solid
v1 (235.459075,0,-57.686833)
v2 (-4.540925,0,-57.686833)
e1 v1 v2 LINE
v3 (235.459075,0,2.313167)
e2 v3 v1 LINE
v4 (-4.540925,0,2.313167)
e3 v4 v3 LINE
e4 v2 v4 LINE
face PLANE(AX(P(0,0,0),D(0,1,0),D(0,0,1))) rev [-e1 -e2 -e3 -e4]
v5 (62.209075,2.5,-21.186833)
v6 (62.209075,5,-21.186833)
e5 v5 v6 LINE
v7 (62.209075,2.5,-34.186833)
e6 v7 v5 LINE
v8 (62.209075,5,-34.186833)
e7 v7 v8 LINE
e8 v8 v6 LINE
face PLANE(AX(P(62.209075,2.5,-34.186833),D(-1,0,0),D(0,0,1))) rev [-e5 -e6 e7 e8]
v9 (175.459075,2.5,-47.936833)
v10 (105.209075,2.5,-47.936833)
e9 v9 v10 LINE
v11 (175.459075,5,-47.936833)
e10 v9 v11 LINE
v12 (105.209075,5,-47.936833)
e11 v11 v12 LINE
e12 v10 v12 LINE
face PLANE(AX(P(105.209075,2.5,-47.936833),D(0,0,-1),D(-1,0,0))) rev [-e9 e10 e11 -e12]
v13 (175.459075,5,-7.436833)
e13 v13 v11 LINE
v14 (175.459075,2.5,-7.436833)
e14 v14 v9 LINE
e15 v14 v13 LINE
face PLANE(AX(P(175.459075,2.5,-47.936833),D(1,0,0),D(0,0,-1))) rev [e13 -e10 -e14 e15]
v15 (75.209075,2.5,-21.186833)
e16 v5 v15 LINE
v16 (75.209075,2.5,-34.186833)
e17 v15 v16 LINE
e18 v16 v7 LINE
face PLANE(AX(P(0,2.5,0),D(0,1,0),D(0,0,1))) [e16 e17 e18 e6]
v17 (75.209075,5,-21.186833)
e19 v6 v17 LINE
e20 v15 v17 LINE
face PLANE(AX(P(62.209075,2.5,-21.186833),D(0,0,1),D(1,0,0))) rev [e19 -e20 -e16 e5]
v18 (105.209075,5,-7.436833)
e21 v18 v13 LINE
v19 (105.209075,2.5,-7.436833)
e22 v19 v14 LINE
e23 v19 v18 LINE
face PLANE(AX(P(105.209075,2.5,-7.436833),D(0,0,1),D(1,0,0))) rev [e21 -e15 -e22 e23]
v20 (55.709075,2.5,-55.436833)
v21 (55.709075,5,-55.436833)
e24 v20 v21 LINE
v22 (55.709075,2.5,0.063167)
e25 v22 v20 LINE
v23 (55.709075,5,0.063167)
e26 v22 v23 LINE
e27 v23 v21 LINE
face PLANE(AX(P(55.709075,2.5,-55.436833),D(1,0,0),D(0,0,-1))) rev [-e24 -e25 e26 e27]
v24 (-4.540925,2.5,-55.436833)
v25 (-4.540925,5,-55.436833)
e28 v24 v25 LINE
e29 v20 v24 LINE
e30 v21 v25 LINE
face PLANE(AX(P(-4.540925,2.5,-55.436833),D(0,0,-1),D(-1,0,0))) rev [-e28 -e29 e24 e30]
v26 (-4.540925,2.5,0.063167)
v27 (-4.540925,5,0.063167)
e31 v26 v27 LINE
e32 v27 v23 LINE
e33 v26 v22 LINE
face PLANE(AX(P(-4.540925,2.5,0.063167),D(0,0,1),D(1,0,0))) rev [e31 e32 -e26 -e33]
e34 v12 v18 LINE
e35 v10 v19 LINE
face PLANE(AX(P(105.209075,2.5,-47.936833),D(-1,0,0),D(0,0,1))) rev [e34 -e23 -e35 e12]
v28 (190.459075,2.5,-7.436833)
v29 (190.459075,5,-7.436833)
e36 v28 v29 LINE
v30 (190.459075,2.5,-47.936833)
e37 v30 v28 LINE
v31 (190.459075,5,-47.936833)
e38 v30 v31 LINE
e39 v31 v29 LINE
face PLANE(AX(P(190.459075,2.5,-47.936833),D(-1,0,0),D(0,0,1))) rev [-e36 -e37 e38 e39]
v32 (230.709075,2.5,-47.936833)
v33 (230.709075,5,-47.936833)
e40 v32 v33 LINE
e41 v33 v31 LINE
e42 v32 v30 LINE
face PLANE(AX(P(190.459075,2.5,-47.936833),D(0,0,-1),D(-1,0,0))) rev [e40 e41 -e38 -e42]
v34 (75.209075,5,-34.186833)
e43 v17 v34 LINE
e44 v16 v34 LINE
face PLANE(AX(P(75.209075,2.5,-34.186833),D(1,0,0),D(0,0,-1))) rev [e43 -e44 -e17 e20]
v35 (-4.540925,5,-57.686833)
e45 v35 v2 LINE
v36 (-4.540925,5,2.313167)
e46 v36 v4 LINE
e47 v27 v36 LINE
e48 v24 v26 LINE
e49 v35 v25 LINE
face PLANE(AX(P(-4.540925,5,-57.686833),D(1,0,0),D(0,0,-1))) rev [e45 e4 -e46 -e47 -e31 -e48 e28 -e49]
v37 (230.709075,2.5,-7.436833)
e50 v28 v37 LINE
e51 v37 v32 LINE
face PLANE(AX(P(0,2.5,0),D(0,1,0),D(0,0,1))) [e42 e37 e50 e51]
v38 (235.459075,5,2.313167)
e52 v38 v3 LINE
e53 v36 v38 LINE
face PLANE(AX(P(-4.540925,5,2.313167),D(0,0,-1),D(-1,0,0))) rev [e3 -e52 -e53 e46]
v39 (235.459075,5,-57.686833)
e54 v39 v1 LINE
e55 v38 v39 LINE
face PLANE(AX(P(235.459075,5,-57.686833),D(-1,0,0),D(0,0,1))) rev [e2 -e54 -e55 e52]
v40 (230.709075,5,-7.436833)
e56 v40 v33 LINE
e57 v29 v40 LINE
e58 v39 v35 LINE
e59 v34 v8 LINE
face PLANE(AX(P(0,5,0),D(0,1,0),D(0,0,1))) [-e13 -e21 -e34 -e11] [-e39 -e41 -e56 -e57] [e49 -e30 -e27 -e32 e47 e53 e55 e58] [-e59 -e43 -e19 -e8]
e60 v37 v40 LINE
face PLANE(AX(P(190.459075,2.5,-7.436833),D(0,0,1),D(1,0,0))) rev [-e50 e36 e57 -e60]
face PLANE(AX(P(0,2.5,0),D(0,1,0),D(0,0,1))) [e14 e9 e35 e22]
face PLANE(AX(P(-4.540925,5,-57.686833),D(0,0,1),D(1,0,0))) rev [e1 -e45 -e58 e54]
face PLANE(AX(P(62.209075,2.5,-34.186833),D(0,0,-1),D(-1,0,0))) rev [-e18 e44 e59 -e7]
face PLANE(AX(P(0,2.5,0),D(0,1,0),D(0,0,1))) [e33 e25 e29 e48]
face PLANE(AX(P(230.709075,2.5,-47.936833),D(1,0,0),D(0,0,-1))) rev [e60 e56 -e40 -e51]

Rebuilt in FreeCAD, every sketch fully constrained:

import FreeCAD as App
import Part
import Sketcher
from FreeCAD import Vector
Q = App.Units.Quantity


def add_polygon(sketch, points):
    """Adds a closed chain of lines whose ends are joined by coincident constraints."""
    first, n = sketch.GeometryCount, len(points)
    for a, b in zip(points, points[1:] + points[:1]):
        sketch.addGeometry(Part.LineSegment(App.Vector(*a, 0), App.Vector(*b, 0)), False)
    for i in range(n):
        sketch.addConstraint(Sketcher.Constraint("Coincident", first + i, 2, first + (i + 1) % n, 1))

doc = App.newDocument("Part")
body = doc.addObject("PartDesign::Body", "Body")

# Sketch on XZ plane
sketch1 = body.newObject("Sketcher::SketchObject", "Sketch")
sketch1.AttachmentSupport = (doc.getObject("XZ_Plane"), [""])
sketch1.MapMode = "FlatFace"
add_polygon(sketch1, [(-5, -58), (-5, 2), (235, 2), (235, -58)])  # lines 0-3
sketch1.addConstraint([
    Sketcher.Constraint("Vertical", 0),
    Sketcher.Constraint("Horizontal", 1),
    Sketcher.Constraint("Vertical", 2),
    Sketcher.Constraint("Horizontal", 3),
    Sketcher.Constraint("DistanceX", 1, 1, 1, 2, Q("240 mm")),
    Sketcher.Constraint("DistanceY", 0, 1, 0, 2, Q("60 mm")),
    Sketcher.Constraint("DistanceX", 0, 2, -1, 1, Q("4.540925 mm")),
    Sketcher.Constraint("DistanceY", -1, 1, 0, 2, Q("2.313167 mm")),
])
pad1 = body.newObject("PartDesign::Pad", "Pad")
pad1.Profile = sketch1
pad1.Length = 5
pad1.Reversed = True

# Sketch on XZ plane
sketch2 = body.newObject("Sketcher::SketchObject", "Sketch001")
sketch2.AttachmentSupport = (doc.getObject("XZ_Plane"), [""])
sketch2.MapMode = "FlatFace"
sketch2.AttachmentOffset = App.Placement(Vector(0, 0, -5), App.Rotation())
add_polygon(sketch2, [(190, -48), (190, -7), (231, -7), (231, -48)])  # lines 0-3
add_polygon(sketch2, [(105, -48), (105, -7), (175, -7), (175, -48)])  # lines 4-7
add_polygon(sketch2, [(62, -34), (62, -21), (75, -21), (75, -34)])  # lines 8-11
add_polygon(sketch2, [(-5, -55), (-5, 0), (56, 0), (56, -55)])  # lines 12-15
sketch2.addConstraint([
    Sketcher.Constraint("Vertical", 0),
    Sketcher.Constraint("Horizontal", 1),
    Sketcher.Constraint("Vertical", 2),
    Sketcher.Constraint("Horizontal", 3),
    Sketcher.Constraint("Vertical", 4),
    Sketcher.Constraint("Horizontal", 5),
    Sketcher.Constraint("Vertical", 6),
    Sketcher.Constraint("Horizontal", 7),
    Sketcher.Constraint("Vertical", 8),
    Sketcher.Constraint("Horizontal", 9),
    Sketcher.Constraint("Vertical", 10),
    Sketcher.Constraint("Horizontal", 11),
    Sketcher.Constraint("Vertical", 12),
    Sketcher.Constraint("Horizontal", 13),
    Sketcher.Constraint("Vertical", 14),
    Sketcher.Constraint("Horizontal", 15),
    Sketcher.Constraint("Horizontal", 1, 2, 4, 2),
    Sketcher.Constraint("Horizontal", 3, 2, 6, 2),
    Sketcher.Constraint("Equal", 11, 8),
    Sketcher.Constraint("DistanceX", 9, 1, 9, 2, Q("13 mm")),
    Sketcher.Constraint("DistanceY", 0, 1, 0, 2, Q("40.5 mm")),
    Sketcher.Constraint("DistanceY", 12, 1, 12, 2, Q("55.5 mm")),
    Sketcher.Constraint("DistanceX", 5, 2, 0, 2, Q("15 mm")),
    Sketcher.Constraint("DistanceX", 8, 2, 4, 2, Q("43 mm")),
    Sketcher.Constraint("DistanceX", 1, 1, 1, 2, Q("40.25 mm")),
    Sketcher.Constraint("DistanceX", 5, 1, 5, 2, Q("70.25 mm")),
    Sketcher.Constraint("DistanceX", 13, 1, 13, 2, Q("60.25 mm")),
    Sketcher.Constraint("DistanceY", 4, 2, 12, 2, Q("7.5 mm")),
    Sketcher.Constraint("DistanceX", 13, 2, 8, 2, Q("6.5 mm")),
    Sketcher.Constraint("DistanceY", 8, 2, 4, 2, Q("13.75 mm")),
    Sketcher.Constraint("DistanceX", -1, 1, 0, 2, Q("190.459075 mm")),
    Sketcher.Constraint("DistanceY", 0, 2, -1, 1, Q("7.436833 mm")),
])
pocket1 = body.newObject("PartDesign::Pocket", "Pocket")
pocket1.Profile = sketch2
pocket1.Length = 2.5
pocket1.Reversed = True

doc.recompute()
